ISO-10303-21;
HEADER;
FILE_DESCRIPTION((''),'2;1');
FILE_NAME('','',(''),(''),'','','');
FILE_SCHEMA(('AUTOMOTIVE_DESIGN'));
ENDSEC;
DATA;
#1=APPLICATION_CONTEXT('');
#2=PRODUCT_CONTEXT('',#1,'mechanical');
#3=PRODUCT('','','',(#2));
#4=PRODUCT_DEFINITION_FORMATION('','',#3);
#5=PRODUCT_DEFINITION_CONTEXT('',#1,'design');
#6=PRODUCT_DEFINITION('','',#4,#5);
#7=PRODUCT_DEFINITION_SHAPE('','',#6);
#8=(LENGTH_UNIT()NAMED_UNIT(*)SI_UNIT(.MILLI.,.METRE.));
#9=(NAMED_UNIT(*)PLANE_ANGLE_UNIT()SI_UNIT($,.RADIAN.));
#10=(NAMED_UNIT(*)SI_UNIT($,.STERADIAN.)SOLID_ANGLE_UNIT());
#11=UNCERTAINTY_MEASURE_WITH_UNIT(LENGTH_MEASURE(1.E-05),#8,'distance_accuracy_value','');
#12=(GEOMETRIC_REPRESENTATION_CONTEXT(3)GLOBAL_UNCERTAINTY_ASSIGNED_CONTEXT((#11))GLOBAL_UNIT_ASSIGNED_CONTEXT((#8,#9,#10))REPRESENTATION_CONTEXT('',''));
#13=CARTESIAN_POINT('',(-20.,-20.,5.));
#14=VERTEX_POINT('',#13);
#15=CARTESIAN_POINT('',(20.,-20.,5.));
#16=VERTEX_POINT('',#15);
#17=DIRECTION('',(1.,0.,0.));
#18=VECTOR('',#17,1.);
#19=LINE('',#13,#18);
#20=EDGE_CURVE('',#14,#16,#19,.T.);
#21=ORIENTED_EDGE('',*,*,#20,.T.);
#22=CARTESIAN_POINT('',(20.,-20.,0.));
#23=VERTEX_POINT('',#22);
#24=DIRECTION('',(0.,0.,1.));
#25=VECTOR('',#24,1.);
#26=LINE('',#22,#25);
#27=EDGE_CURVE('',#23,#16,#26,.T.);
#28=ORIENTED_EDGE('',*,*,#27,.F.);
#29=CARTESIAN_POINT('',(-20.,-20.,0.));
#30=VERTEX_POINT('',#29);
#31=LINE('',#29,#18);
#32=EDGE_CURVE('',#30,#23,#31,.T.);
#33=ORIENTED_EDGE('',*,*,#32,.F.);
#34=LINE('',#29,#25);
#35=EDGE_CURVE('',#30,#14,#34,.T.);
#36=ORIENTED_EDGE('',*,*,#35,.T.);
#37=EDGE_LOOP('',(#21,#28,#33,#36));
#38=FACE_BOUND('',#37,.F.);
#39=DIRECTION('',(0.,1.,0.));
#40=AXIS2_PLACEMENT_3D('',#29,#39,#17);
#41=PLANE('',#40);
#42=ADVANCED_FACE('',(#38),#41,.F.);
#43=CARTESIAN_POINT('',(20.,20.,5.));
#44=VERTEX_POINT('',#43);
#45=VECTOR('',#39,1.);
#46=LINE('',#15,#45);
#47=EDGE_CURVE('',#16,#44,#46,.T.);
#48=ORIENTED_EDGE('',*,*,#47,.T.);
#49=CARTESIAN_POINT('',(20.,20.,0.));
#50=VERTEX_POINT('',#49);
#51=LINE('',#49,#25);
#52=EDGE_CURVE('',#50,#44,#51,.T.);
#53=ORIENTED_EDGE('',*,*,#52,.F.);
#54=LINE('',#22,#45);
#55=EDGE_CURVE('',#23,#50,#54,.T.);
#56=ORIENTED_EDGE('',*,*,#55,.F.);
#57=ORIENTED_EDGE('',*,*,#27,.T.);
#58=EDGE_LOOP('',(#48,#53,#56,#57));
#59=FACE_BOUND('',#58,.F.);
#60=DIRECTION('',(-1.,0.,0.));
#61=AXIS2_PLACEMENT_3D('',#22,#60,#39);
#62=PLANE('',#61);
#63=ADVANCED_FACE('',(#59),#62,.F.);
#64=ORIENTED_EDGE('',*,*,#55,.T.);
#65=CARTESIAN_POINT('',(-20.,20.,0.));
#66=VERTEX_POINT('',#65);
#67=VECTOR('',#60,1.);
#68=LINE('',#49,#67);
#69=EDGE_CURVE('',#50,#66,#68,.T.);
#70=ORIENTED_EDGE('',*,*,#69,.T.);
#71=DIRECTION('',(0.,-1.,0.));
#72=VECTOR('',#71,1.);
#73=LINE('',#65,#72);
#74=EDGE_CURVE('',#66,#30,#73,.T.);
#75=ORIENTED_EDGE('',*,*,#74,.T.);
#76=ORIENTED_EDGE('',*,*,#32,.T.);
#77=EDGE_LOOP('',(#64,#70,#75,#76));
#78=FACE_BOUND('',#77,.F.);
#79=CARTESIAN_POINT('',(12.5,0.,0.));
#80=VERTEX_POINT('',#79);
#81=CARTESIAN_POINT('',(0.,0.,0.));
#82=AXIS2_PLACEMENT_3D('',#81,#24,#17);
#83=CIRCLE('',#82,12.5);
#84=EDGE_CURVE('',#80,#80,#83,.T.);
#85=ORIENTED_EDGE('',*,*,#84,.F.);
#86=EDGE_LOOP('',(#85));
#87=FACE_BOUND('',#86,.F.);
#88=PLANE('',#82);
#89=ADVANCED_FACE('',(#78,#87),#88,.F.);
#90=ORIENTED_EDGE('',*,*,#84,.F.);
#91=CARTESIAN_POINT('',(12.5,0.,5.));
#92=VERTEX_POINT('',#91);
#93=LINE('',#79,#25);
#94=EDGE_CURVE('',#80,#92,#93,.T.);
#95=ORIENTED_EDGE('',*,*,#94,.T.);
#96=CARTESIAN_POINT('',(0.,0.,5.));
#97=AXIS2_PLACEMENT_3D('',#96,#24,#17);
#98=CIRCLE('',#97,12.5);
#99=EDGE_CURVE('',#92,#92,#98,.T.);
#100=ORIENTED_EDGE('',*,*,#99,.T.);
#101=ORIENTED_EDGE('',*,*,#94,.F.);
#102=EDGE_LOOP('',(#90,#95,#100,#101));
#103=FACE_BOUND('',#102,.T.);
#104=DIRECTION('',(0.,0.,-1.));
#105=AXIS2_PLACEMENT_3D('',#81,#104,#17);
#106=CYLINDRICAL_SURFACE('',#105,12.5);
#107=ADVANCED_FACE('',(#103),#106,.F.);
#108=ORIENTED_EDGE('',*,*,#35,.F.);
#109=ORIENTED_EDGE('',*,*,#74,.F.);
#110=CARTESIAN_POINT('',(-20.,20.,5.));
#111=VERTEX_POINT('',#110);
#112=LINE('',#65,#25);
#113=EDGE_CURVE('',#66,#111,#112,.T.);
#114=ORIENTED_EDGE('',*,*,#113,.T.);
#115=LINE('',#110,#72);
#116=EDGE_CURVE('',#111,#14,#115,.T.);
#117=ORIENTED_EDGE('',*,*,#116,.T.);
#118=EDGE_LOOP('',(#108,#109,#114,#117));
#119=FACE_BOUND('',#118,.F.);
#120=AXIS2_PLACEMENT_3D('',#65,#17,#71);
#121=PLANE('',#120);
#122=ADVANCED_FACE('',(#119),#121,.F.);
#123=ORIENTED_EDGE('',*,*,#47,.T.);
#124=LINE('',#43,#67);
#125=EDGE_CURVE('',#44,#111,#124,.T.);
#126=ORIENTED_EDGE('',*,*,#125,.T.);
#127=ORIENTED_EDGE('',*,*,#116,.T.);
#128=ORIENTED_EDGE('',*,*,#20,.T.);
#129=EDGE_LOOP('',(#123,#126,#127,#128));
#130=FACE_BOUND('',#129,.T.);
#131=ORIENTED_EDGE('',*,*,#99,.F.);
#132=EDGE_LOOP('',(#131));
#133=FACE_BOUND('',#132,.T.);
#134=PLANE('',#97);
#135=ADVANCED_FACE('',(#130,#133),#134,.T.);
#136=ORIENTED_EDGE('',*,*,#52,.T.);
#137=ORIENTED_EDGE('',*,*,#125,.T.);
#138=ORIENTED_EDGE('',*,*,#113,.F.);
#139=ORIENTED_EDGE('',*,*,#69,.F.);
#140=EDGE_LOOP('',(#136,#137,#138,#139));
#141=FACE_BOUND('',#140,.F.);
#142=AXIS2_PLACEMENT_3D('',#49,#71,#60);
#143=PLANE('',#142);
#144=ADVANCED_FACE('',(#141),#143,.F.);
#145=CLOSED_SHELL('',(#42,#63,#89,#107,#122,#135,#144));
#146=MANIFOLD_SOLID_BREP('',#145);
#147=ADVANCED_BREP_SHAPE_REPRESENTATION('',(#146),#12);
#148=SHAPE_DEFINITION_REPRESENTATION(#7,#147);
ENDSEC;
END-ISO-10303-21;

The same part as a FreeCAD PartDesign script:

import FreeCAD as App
import Part
import Sketcher

V = App.Vector


def add_polygon(sketch, points):
    """Adds a closed chain of lines whose ends are joined by coincident constraints."""
    first, n = sketch.GeometryCount, len(points)
    for a, b in zip(points, points[1:] + points[:1]):
        sketch.addGeometry(Part.LineSegment(App.Vector(*a, 0), App.Vector(*b, 0)), False)
    for i in range(n):
        sketch.addConstraint(Sketcher.Constraint("Coincident", first + i, 2, first + (i + 1) % n, 1))

doc = App.newDocument("Part")
params = doc.addObject("Spreadsheet::Sheet", "Params")
for row, (alias, value) in enumerate([
    ("sketch1_diameter", "25 mm"),
    ("sketch1_width", "40 mm"),
    ("pad1_length", "5 mm"),
], start=1):
    params.set(f"A{row}", alias)
    params.set(f"B{row}", "=" + value)
    params.setAlias(f"B{row}", alias)

body = doc.addObject("PartDesign::Body", "Body")

# Sketch on XY plane
sketch1 = body.newObject("Sketcher::SketchObject", "Sketch")
sketch1.AttachmentSupport = (doc.getObject("XY_Plane"), [""])
sketch1.MapMode = "FlatFace"
add_polygon(sketch1, [(-20, 20), (-20, -20), (20, -20), (20, 20)])  # lines 0-3
sketch1.addGeometry(Part.Circle(V(0, 0, 0), V(0, 0, 1), 12), False)  # 4
sketch1.addConstraint([
    Sketcher.Constraint("Vertical", 0),
    Sketcher.Constraint("Horizontal", 1),
    Sketcher.Constraint("Vertical", 2),
    Sketcher.Constraint("Horizontal", 3),
    Sketcher.Constraint("Coincident", 4, 3, -1, 1),
    Sketcher.Constraint("Symmetric", 0, 2, 2, 2, -1, 1),
    Sketcher.Constraint("Equal", 3, 0),
    Sketcher.Constraint("Diameter", 4, 25.0),
    Sketcher.Constraint("DistanceX", 1, 1, 1, 2, 40.0),
])
sketch1.setExpression("Constraints[11]", "Params.sketch1_diameter")
sketch1.setExpression("Constraints[12]", "Params.sketch1_width")
pad1 = body.newObject("PartDesign::Pad", "Pad")
pad1.Profile = sketch1
pad1.setExpression("Length", "Params.pad1_length")

doc.recompute()
